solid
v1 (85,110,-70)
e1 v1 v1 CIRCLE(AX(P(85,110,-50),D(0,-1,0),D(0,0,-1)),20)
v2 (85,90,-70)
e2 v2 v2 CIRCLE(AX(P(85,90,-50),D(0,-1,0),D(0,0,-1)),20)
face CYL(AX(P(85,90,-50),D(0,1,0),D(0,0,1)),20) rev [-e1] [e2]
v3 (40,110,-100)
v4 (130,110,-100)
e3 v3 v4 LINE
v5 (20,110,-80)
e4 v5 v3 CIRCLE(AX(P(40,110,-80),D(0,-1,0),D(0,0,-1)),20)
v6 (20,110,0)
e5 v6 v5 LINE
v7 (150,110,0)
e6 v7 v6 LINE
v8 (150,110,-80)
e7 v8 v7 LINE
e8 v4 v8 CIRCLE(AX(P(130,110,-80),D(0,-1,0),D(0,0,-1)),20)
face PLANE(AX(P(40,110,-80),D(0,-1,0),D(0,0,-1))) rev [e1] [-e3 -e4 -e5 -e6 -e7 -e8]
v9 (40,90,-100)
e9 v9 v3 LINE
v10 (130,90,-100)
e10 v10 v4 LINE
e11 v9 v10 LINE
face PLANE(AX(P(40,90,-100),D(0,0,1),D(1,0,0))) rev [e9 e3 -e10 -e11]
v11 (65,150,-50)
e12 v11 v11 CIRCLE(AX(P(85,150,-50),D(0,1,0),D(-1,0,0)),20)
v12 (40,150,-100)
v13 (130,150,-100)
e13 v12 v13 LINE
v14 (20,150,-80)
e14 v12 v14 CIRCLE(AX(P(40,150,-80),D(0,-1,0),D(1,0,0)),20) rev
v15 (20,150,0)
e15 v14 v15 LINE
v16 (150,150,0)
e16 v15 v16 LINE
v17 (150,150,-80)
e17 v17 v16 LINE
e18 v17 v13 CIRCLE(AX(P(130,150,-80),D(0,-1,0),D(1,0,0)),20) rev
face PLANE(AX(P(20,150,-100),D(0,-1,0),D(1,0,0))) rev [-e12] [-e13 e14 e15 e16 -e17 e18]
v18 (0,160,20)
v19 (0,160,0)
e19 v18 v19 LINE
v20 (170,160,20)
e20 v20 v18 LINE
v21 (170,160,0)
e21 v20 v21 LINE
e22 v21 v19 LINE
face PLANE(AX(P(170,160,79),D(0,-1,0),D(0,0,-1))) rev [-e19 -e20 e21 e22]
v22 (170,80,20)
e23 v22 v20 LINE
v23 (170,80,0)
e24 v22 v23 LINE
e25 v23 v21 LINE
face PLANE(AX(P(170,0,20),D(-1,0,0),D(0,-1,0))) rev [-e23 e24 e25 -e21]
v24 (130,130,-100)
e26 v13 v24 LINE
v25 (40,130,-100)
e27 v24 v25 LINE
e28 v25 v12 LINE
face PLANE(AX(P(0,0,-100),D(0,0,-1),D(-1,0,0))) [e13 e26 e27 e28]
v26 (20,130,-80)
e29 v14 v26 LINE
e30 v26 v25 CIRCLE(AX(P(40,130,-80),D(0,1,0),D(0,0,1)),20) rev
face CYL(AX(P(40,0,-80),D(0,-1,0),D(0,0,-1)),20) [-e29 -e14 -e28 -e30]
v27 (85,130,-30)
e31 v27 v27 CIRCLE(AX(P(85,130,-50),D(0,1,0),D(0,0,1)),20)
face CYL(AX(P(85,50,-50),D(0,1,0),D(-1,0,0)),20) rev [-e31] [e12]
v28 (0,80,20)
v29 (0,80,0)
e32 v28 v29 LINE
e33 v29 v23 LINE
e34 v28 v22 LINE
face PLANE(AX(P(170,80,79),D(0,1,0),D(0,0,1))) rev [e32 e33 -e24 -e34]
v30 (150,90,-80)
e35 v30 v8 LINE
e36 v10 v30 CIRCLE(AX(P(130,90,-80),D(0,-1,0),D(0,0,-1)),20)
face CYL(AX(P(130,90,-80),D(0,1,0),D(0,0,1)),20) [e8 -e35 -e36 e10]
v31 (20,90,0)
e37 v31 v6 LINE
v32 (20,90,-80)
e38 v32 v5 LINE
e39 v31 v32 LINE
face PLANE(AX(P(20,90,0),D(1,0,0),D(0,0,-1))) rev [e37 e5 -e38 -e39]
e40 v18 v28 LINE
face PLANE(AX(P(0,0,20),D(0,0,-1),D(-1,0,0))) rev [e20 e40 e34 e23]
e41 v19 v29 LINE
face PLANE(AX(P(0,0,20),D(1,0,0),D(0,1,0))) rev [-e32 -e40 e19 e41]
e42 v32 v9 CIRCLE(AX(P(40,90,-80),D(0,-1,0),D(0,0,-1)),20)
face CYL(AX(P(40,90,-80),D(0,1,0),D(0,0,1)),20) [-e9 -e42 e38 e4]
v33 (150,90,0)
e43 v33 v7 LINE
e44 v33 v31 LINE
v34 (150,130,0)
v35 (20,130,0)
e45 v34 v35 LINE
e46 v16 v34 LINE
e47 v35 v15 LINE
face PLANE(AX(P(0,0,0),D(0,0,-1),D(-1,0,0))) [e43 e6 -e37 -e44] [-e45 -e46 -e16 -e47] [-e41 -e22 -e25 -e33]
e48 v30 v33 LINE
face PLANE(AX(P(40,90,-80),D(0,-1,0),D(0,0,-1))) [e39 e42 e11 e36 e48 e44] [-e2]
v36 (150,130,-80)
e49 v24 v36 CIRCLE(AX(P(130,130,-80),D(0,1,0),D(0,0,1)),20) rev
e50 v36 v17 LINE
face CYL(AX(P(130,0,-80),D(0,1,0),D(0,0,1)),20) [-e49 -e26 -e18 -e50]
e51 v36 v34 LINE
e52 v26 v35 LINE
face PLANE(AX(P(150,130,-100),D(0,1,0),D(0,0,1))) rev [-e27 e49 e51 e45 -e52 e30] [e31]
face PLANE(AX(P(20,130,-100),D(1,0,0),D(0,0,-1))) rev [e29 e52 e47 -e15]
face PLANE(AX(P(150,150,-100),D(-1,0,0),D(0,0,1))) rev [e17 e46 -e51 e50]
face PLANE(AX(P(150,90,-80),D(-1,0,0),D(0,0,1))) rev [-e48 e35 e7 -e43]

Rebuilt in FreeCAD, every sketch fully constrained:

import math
import FreeCAD as App
import Part
import Sketcher


def edges_at(feature, points):
    """Names of the edges that pass closest to the given points."""
    edges = feature.Shape.Edges
    near = lambda p: min(range(len(edges)), key=lambda i: edges[i].distToShape(Part.Vertex(*p))[0])
    return sorted({f"Edge{near(p) + 1}" for p in points})


def add_polygon(sketch, points):
    """Adds a closed chain of lines whose ends are joined by coincident constraints."""
    first, n = sketch.GeometryCount, len(points)
    for a, b in zip(points, points[1:] + points[:1]):
        sketch.addGeometry(Part.LineSegment(App.Vector(*a, 0), App.Vector(*b, 0)), False)
    for i in range(n):
        sketch.addConstraint(Sketcher.Constraint("Coincident", first + i, 2, first + (i + 1) % n, 1))

doc = App.newDocument("Part")
body = doc.addObject("PartDesign::Body", "Body")

# Sketch on XY plane
sketch1 = body.newObject("Sketcher::SketchObject", "Sketch")
sketch1.AttachmentSupport = (doc.getObject("XY_Plane"), [""])
sketch1.MapMode = "FlatFace"
add_polygon(sketch1, [(0, 200), (0, 0), (170, 0), (170, 200)])  # lines 0-3
sketch1.addConstraint([
    Sketcher.Constraint("Vertical", 0),
    Sketcher.Constraint("Horizontal", 1),
    Sketcher.Constraint("Vertical", 2),
    Sketcher.Constraint("Horizontal", 3),
    Sketcher.Constraint("Coincident", 0, 2, -1, 1),
    Sketcher.Constraint("DistanceX", 1, 1, 1, 2, 170.0),
    Sketcher.Constraint("DistanceY", 0, 2, 0, 1, 200.0),
])
pad1 = body.newObject("PartDesign::Pad", "Pad")
pad1.Profile = sketch1
pad1.Length = 20

# Sketch on XY plane
sketch2 = body.newObject("Sketcher::SketchObject", "Sketch001")
sketch2.AttachmentSupport = (doc.getObject("XY_Plane"), [""])
sketch2.MapMode = "FlatFace"
add_polygon(sketch2, [(150, 150), (150, 130), (20, 130), (20, 150)])  # lines 0-3
sketch2.addConstraint([
    Sketcher.Constraint("Vertical", 0),
    Sketcher.Constraint("Horizontal", 1),
    Sketcher.Constraint("Vertical", 2),
    Sketcher.Constraint("Horizontal", 3),
    Sketcher.Constraint("DistanceX", 1, 2, 1, 1, 130.0),
    Sketcher.Constraint("DistanceY", 0, 2, 0, 1, 20.0),
    Sketcher.Constraint("DistanceX", -1, 1, 0, 2, 150.0),
    Sketcher.Constraint("DistanceY", -1, 1, 0, 2, 130.0),
])
pad2 = body.newObject("PartDesign::Pad", "Pad001")
pad2.Profile = sketch2
pad2.Length = 100
pad2.Reversed = True
doc.recompute()

fillet = body.newObject("PartDesign::Fillet", "Fillet")
fillet.Base = (pad2, edges_at(pad2, [(150, 140, -100), (20, 140, -100)]))
fillet.Radius = 20

# Sketch on XZ plane
sketch3 = body.newObject("Sketcher::SketchObject", "Sketch002")
sketch3.AttachmentSupport = (doc.getObject("XZ_Plane"), [""])
sketch3.MapMode = "FlatFace"
sketch3.AttachmentOffset = App.Placement(App.Vector(0, 0, -150), App.Rotation())
sketch3.addGeometry(Part.Circle(App.Vector(85, -50, 0), App.Vector(0, 0, 1), 20), False)
sketch3.addConstraint([
    Sketcher.Constraint("Diameter", 0, 40.0),
    Sketcher.Constraint("DistanceX", -1, 1, 0, 3, 85.0),
    Sketcher.Constraint("DistanceY", 0, 3, -1, 1, 50.0),
])
pocket1 = body.newObject("PartDesign::Pocket", "Pocket")
pocket1.Profile = sketch3
pocket1.Length = 100
pocket1.Reversed = True

# Sketch on XZ plane
sketch4 = body.newObject("Sketcher::SketchObject", "Sketch003")
sketch4.AttachmentSupport = (doc.getObject("XZ_Plane"), [""])
sketch4.MapMode = "FlatFace"
sketch4.AttachmentOffset = App.Placement(App.Vector(0, 0, -110), App.Rotation())
sketch4.addGeometry([
    Part.LineSegment(App.Vector(20, 0, 0), App.Vector(20, -80, 0)),  # 0
    Part.ArcOfCircle(Part.Circle(App.Vector(40, -80, 0), App.Vector(0, 0, 1), 20), math.radians(180), math.radians(270)),  # 1
    Part.LineSegment(App.Vector(40, -100, 0), App.Vector(130, -100, 0)),  # 2
    Part.ArcOfCircle(Part.Circle(App.Vector(130, -80, 0), App.Vector(0, 0, 1), 20), math.radians(-90), math.radians(0)),  # 3
    Part.LineSegment(App.Vector(150, -80, 0), App.Vector(150, 0, 0)),  # 4
    Part.LineSegment(App.Vector(150, 0, 0), App.Vector(20, 0, 0)),  # 5
    Part.Circle(App.Vector(85, -50, 0), App.Vector(0, 0, 1), 20),  # 6
], False)
sketch4.addConstraint([
    Sketcher.Constraint("Tangent", 0, 2, 1, 1),
    Sketcher.Constraint("Tangent", 1, 2, 2, 1),
    Sketcher.Constraint("Tangent", 2, 2, 3, 1),
    Sketcher.Constraint("Tangent", 3, 2, 4, 1),
    Sketcher.Constraint("Coincident", 4, 2, 5, 1),
    Sketcher.Constraint("Coincident", 5, 2, 0, 1),
    Sketcher.Constraint("Vertical", 0),
    Sketcher.Constraint("Horizontal", 2),
    Sketcher.Constraint("Vertical", 4),
    Sketcher.Constraint("Horizontal", 5),
    Sketcher.Constraint("Equal", 1, 3),
    Sketcher.Constraint("Equal", 3, 6),
    Sketcher.Constraint("PointOnObject", 4, 2, -1),
    Sketcher.Constraint("Diameter", 6, 40.0),
    Sketcher.Constraint("DistanceX", 2, 1, 2, 2, 90.0),
    Sketcher.Constraint("DistanceY", 0, 2, 0, 1, 80.0),
    Sketcher.Constraint("DistanceX", -1, 1, 1, 3, 40.0),
    Sketcher.Constraint("DistanceX", -1, 1, 6, 3, 85.0),
    Sketcher.Constraint("DistanceY", 6, 3, -1, 1, 50.0),
])
pad3 = body.newObject("PartDesign::Pad", "Pad002")
pad3.Profile = sketch4
pad3.Length = 20

# Sketch on XY plane
sketch5 = body.newObject("Sketcher::SketchObject", "Sketch004")
sketch5.AttachmentSupport = (doc.getObject("XY_Plane"), [""])
sketch5.MapMode = "FlatFace"
add_polygon(sketch5, [(170, 200), (170, 160), (0, 160), (0, 200)])  # lines 0-3
add_polygon(sketch5, [(170, 80), (170, 0), (0, 0), (0, 80)])  # lines 4-7
sketch5.addConstraint([
    Sketcher.Constraint("Vertical", 0),
    Sketcher.Constraint("Horizontal", 1),
    Sketcher.Constraint("Vertical", 2),
    Sketcher.Constraint("Horizontal", 3),
    Sketcher.Constraint("Vertical", 4),
    Sketcher.Constraint("Horizontal", 5),
    Sketcher.Constraint("Vertical", 6),
    Sketcher.Constraint("Horizontal", 7),
    Sketcher.Constraint("Coincident", 5, 2, -1, 1),
    Sketcher.Constraint("PointOnObject", 1, 2, -2),
    Sketcher.Constraint("Vertical", 3, 2, 4, 2),
    Sketcher.Constraint("DistanceX", 1, 2, 1, 1, 170.0),
    Sketcher.Constraint("DistanceY", 0, 2, 0, 1, 40.0),
    Sketcher.Constraint("DistanceY", 4, 2, 4, 1, 80.0),
    Sketcher.Constraint("DistanceY", -1, 1, 0, 2, 160.0),
])
pocket2 = body.newObject("PartDesign::Pocket", "Pocket001")
pocket2.Profile = sketch5
pocket2.Length = 79
pocket2.Reversed = True

doc.recompute()
